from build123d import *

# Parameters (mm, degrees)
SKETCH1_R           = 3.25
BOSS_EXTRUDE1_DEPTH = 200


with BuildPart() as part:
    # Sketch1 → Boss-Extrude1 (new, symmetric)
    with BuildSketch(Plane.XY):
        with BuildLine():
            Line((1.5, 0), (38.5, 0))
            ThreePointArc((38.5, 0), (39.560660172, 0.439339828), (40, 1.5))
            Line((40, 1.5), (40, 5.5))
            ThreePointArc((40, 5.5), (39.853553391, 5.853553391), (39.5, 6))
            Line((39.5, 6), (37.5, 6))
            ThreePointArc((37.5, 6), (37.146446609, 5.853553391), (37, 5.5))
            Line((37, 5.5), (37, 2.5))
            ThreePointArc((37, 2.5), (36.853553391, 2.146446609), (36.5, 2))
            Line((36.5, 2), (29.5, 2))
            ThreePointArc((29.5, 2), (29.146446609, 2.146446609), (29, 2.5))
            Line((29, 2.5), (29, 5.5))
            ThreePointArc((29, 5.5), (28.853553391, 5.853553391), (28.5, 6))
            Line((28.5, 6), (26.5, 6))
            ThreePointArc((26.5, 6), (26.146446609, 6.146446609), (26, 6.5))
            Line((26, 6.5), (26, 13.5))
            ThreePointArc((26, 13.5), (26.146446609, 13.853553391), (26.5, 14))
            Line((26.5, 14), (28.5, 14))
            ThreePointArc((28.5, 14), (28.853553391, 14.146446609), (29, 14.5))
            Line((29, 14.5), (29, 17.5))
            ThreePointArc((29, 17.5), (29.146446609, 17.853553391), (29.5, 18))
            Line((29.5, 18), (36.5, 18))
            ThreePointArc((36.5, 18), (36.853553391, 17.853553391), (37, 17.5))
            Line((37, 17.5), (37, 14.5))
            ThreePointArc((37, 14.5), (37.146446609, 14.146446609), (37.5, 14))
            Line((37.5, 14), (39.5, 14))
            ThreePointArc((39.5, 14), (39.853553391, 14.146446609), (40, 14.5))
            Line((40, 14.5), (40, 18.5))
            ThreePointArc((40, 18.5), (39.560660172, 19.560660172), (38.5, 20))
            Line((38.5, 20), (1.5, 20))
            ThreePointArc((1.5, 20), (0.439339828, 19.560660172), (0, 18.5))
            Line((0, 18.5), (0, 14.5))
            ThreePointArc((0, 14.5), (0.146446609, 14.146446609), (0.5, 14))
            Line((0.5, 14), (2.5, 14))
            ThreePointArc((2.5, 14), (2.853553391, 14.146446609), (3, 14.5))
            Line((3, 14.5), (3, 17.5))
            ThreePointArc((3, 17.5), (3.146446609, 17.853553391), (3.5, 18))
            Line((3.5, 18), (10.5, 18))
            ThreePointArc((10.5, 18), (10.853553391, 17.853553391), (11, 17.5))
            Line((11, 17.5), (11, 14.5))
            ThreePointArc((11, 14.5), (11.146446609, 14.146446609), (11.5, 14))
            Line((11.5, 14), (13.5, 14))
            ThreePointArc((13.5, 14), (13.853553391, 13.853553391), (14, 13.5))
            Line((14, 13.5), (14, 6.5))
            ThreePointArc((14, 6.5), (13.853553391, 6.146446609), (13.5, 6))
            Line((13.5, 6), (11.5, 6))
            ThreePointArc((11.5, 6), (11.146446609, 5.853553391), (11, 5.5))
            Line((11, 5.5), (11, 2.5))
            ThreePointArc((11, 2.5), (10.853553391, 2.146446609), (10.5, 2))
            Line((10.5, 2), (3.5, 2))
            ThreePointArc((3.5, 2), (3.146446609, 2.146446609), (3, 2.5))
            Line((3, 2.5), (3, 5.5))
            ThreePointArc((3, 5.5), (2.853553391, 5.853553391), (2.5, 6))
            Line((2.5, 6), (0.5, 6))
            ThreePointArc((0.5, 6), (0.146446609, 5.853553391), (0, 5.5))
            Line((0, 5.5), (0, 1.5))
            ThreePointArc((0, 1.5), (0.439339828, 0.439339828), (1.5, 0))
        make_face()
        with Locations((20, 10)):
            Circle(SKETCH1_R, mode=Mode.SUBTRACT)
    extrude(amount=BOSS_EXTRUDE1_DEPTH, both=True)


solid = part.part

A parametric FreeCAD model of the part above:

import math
import FreeCAD as App
import Part
import Sketcher
from FreeCAD import Vector
Q = App.Units.Quantity

doc = App.newDocument("Part")
body = doc.addObject("PartDesign::Body", "Body")

# Sketch on XY plane
sketch1 = body.newObject("Sketcher::SketchObject", "Sketch")
sketch1.AttachmentSupport = (doc.getObject("XY_Plane"), [""])
sketch1.MapMode = "FlatFace"
sketch1.addGeometry(Part.LineSegment(Vector(1.5, 0, 0), Vector(38.5, 0, 0)), False)
sketch1.addGeometry(Part.ArcOfCircle(Part.Circle(Vector(38.5, 1.5, 0), Vector(0, 0, 1), 1.5), math.radians(-90), math.radians(0)), False)
sketch1.addGeometry(Part.LineSegment(Vector(40, 1.5, 0), Vector(40, 5.5, 0)), False)
sketch1.addGeometry(Part.ArcOfCircle(Part.Circle(Vector(39.5, 5.5, 0), Vector(0, 0, 1), 0.5), math.radians(0), math.radians(90)), False)
sketch1.addGeometry(Part.LineSegment(Vector(39.5, 6, 0), Vector(37.5, 6, 0)), False)
sketch1.addGeometry(Part.ArcOfCircle(Part.Circle(Vector(37.5, 5.5, 0), Vector(0, 0, 1), 0.5), math.radians(90), math.radians(180)), False)
sketch1.addGeometry(Part.LineSegment(Vector(37, 5.5, 0), Vector(37, 2.5, 0)), False)
sketch1.addGeometry(Part.ArcOfCircle(Part.Circle(Vector(36.5, 2.5, 0), Vector(0, 0, 1), 0.5), math.radians(-90), math.radians(0)), False)
sketch1.addGeometry(Part.LineSegment(Vector(36.5, 2, 0), Vector(29.5, 2, 0)), False)
sketch1.addGeometry(Part.ArcOfCircle(Part.Circle(Vector(29.5, 2.5, 0), Vector(0, 0, 1), 0.5), math.radians(180), math.radians(270)), False)
sketch1.addGeometry(Part.LineSegment(Vector(29, 2.5, 0), Vector(29, 5.5, 0)), False)
sketch1.addGeometry(Part.ArcOfCircle(Part.Circle(Vector(28.5, 5.5, 0), Vector(0, 0, 1), 0.5), math.radians(0), math.radians(90)), False)
sketch1.addGeometry(Part.LineSegment(Vector(28.5, 6, 0), Vector(26.5, 6, 0)), False)
sketch1.addGeometry(Part.ArcOfCircle(Part.Circle(Vector(26.5, 6.5, 0), Vector(0, 0, 1), 0.5), math.radians(180), math.radians(270)), False)
sketch1.addGeometry(Part.LineSegment(Vector(26, 6.5, 0), Vector(26, 13.5, 0)), False)
sketch1.addGeometry(Part.ArcOfCircle(Part.Circle(Vector(26.5, 13.5, 0), Vector(0, 0, 1), 0.5), math.radians(90), math.radians(180)), False)
sketch1.addGeometry(Part.LineSegment(Vector(26.5, 14, 0), Vector(28.5, 14, 0)), False)
sketch1.addGeometry(Part.ArcOfCircle(Part.Circle(Vector(28.5, 14.5, 0), Vector(0, 0, 1), 0.5), math.radians(-90), math.radians(0)), False)
sketch1.addGeometry(Part.LineSegment(Vector(29, 14.5, 0), Vector(29, 17.5, 0)), False)
sketch1.addGeometry(Part.ArcOfCircle(Part.Circle(Vector(29.5, 17.5, 0), Vector(0, 0, 1), 0.5), math.radians(90), math.radians(180)), False)
sketch1.addGeometry(Part.LineSegment(Vector(29.5, 18, 0), Vector(36.5, 18, 0)), False)
sketch1.addGeometry(Part.ArcOfCircle(Part.Circle(Vector(36.5, 17.5, 0), Vector(0, 0, 1), 0.5), math.radians(0), math.radians(90)), False)
sketch1.addGeometry(Part.LineSegment(Vector(37, 17.5, 0), Vector(37, 14.5, 0)), False)
sketch1.addGeometry(Part.ArcOfCircle(Part.Circle(Vector(37.5, 14.5, 0), Vector(0, 0, 1), 0.5), math.radians(180), math.radians(270)), False)
sketch1.addGeometry(Part.LineSegment(Vector(37.5, 14, 0), Vector(39.5, 14, 0)), False)
sketch1.addGeometry(Part.ArcOfCircle(Part.Circle(Vector(39.5, 14.5, 0), Vector(0, 0, 1), 0.5), math.radians(-90), math.radians(0)), False)
sketch1.addGeometry(Part.LineSegment(Vector(40, 14.5, 0), Vector(40, 18.5, 0)), False)
sketch1.addGeometry(Part.ArcOfCircle(Part.Circle(Vector(38.5, 18.5, 0), Vector(0, 0, 1), 1.5), math.radians(0), math.radians(90)), False)
sketch1.addGeometry(Part.LineSegment(Vector(38.5, 20, 0), Vector(1.5, 20, 0)), False)
sketch1.addGeometry(Part.ArcOfCircle(Part.Circle(Vector(1.5, 18.5, 0), Vector(0, 0, 1), 1.5), math.radians(90), math.radians(180)), False)
sketch1.addGeometry(Part.LineSegment(Vector(0, 18.5, 0), Vector(0, 14.5, 0)), False)
sketch1.addGeometry(Part.ArcOfCircle(Part.Circle(Vector(0.5, 14.5, 0), Vector(0, 0, 1), 0.5), math.radians(180), math.radians(270)), False)
sketch1.addGeometry(Part.LineSegment(Vector(0.5, 14, 0), Vector(2.5, 14, 0)), False)
sketch1.addGeometry(Part.ArcOfCircle(Part.Circle(Vector(2.5, 14.5, 0), Vector(0, 0, 1), 0.5), math.radians(-90), math.radians(0)), False)
sketch1.addGeometry(Part.LineSegment(Vector(3, 14.5, 0), Vector(3, 17.5, 0)), False)
sketch1.addGeometry(Part.ArcOfCircle(Part.Circle(Vector(3.5, 17.5, 0), Vector(0, 0, 1), 0.5), math.radians(90), math.radians(180)), False)
sketch1.addGeometry(Part.LineSegment(Vector(3.5, 18, 0), Vector(10.5, 18, 0)), False)
sketch1.addGeometry(Part.ArcOfCircle(Part.Circle(Vector(10.5, 17.5, 0), Vector(0, 0, 1), 0.5), math.radians(0), math.radians(90)), False)
sketch1.addGeometry(Part.LineSegment(Vector(11, 17.5, 0), Vector(11, 14.5, 0)), False)
sketch1.addGeometry(Part.ArcOfCircle(Part.Circle(Vector(11.5, 14.5, 0), Vector(0, 0, 1), 0.5), math.radians(180), math.radians(270)), False)
sketch1.addGeometry(Part.LineSegment(Vector(11.5, 14, 0), Vector(13.5, 14, 0)), False)
sketch1.addGeometry(Part.ArcOfCircle(Part.Circle(Vector(13.5, 13.5, 0), Vector(0, 0, 1), 0.5), math.radians(0), math.radians(90)), False)
sketch1.addGeometry(Part.LineSegment(Vector(14, 13.5, 0), Vector(14, 6.5, 0)), False)
sketch1.addGeometry(Part.ArcOfCircle(Part.Circle(Vector(13.5, 6.5, 0), Vector(0, 0, 1), 0.5), math.radians(-90), math.radians(0)), False)
sketch1.addGeometry(Part.LineSegment(Vector(13.5, 6, 0), Vector(11.5, 6, 0)), False)
sketch1.addGeometry(Part.ArcOfCircle(Part.Circle(Vector(11.5, 5.5, 0), Vector(0, 0, 1), 0.5), math.radians(90), math.radians(180)), False)
sketch1.addGeometry(Part.LineSegment(Vector(11, 5.5, 0), Vector(11, 2.5, 0)), False)
sketch1.addGeometry(Part.ArcOfCircle(Part.Circle(Vector(10.5, 2.5, 0), Vector(0, 0, 1), 0.5), math.radians(-90), math.radians(0)), False)
sketch1.addGeometry(Part.LineSegment(Vector(10.5, 2, 0), Vector(3.5, 2, 0)), False)
sketch1.addGeometry(Part.ArcOfCircle(Part.Circle(Vector(3.5, 2.5, 0), Vector(0, 0, 1), 0.5), math.radians(180), math.radians(270)), False)
sketch1.addGeometry(Part.LineSegment(Vector(3, 2.5, 0), Vector(3, 5.5, 0)), False)
sketch1.addGeometry(Part.ArcOfCircle(Part.Circle(Vector(2.5, 5.5, 0), Vector(0, 0, 1), 0.5), math.radians(0), math.radians(90)), False)
sketch1.addGeometry(Part.LineSegment(Vector(2.5, 6, 0), Vector(0.5, 6, 0)), False)
sketch1.addGeometry(Part.ArcOfCircle(Part.Circle(Vector(0.5, 5.5, 0), Vector(0, 0, 1), 0.5), math.radians(90), math.radians(180)), False)
sketch1.addGeometry(Part.LineSegment(Vector(0, 5.5, 0), Vector(0, 1.5, 0)), False)
sketch1.addGeometry(Part.ArcOfCircle(Part.Circle(Vector(1.5, 1.5, 0), Vector(0, 0, 1), 1.5), math.radians(180), math.radians(270)), False)
sketch1.addGeometry(Part.Circle(Vector(20, 10, 0), Vector(0, 0, 1), 3.25), False)
sketch1.addConstraint(Sketcher.Constraint("Tangent", 0, 2, 1, 1))
sketch1.addConstraint(Sketcher.Constraint("Tangent", 1, 2, 2, 1))
sketch1.addConstraint(Sketcher.Constraint("Tangent", 2, 2, 3, 1))
sketch1.addConstraint(Sketcher.Constraint("Tangent", 3, 2, 4, 1))
sketch1.addConstraint(Sketcher.Constraint("Tangent", 4, 2, 5, 1))
sketch1.addConstraint(Sketcher.Constraint("Tangent", 5, 2, 6, 1))
sketch1.addConstraint(Sketcher.Constraint("Tangent", 6, 2, 7, 2))
sketch1.addConstraint(Sketcher.Constraint("Tangent", 7, 1, 8, 1))
sketch1.addConstraint(Sketcher.Constraint("Tangent", 8, 2, 9, 2))
sketch1.addConstraint(Sketcher.Constraint("Tangent", 9, 1, 10, 1))
sketch1.addConstraint(Sketcher.Constraint("Tangent", 10, 2, 11, 1))
sketch1.addConstraint(Sketcher.Constraint("Tangent", 11, 2, 12, 1))
sketch1.addConstraint(Sketcher.Constraint("Tangent", 12, 2, 13, 2))
sketch1.addConstraint(Sketcher.Constraint("Tangent", 13, 1, 14, 1))
sketch1.addConstraint(Sketcher.Constraint("Tangent", 14, 2, 15, 2))
sketch1.addConstraint(Sketcher.Constraint("Tangent", 15, 1, 16, 1))
sketch1.addConstraint(Sketcher.Constraint("Tangent", 16, 2, 17, 1))
sketch1.addConstraint(Sketcher.Constraint("Tangent", 17, 2, 18, 1))
sketch1.addConstraint(Sketcher.Constraint("Tangent", 18, 2, 19, 2))
sketch1.addConstraint(Sketcher.Constraint("Tangent", 19, 1, 20, 1))
sketch1.addConstraint(Sketcher.Constraint("Tangent", 20, 2, 21, 2))
sketch1.addConstraint(Sketcher.Constraint("Tangent", 21, 1, 22, 1))
sketch1.addConstraint(Sketcher.Constraint("Tangent", 22, 2, 23, 1))
sketch1.addConstraint(Sketcher.Constraint("Tangent", 23, 2, 24, 1))
sketch1.addConstraint(Sketcher.Constraint("Tangent", 24, 2, 25, 1))
sketch1.addConstraint(Sketcher.Constraint("Tangent", 25, 2, 26, 1))
sketch1.addConstraint(Sketcher.Constraint("Tangent", 26, 2, 27, 1))
sketch1.addConstraint(Sketcher.Constraint("Tangent", 27, 2, 28, 1))
sketch1.addConstraint(Sketcher.Constraint("Tangent", 28, 2, 29, 1))
sketch1.addConstraint(Sketcher.Constraint("Tangent", 29, 2, 30, 1))
sketch1.addConstraint(Sketcher.Constraint("Tangent", 30, 2, 31, 1))
sketch1.addConstraint(Sketcher.Constraint("Tangent", 31, 2, 32, 1))
sketch1.addConstraint(Sketcher.Constraint("Tangent", 32, 2, 33, 1))
sketch1.addConstraint(Sketcher.Constraint("Tangent", 33, 2, 34, 1))
sketch1.addConstraint(Sketcher.Constraint("Tangent", 34, 2, 35, 2))
sketch1.addConstraint(Sketcher.Constraint("Tangent", 35, 1, 36, 1))
sketch1.addConstraint(Sketcher.Constraint("Tangent", 36, 2, 37, 2))
sketch1.addConstraint(Sketcher.Constraint("Tangent", 37, 1, 38, 1))
sketch1.addConstraint(Sketcher.Constraint("Tangent", 38, 2, 39, 1))
sketch1.addConstraint(Sketcher.Constraint("Tangent", 39, 2, 40, 1))
sketch1.addConstraint(Sketcher.Constraint("Tangent", 40, 2, 41, 2))
sketch1.addConstraint(Sketcher.Constraint("Tangent", 41, 1, 42, 1))
sketch1.addConstraint(Sketcher.Constraint("Tangent", 42, 2, 43, 2))
sketch1.addConstraint(Sketcher.Constraint("Tangent", 43, 1, 44, 1))
sketch1.addConstraint(Sketcher.Constraint("Tangent", 44, 2, 45, 1))
sketch1.addConstraint(Sketcher.Constraint("Tangent", 45, 2, 46, 1))
sketch1.addConstraint(Sketcher.Constraint("Tangent", 46, 2, 47, 2))
sketch1.addConstraint(Sketcher.Constraint("Tangent", 47, 1, 48, 1))
sketch1.addConstraint(Sketcher.Constraint("Tangent", 48, 2, 49, 2))
sketch1.addConstraint(Sketcher.Constraint("Tangent", 49, 1, 50, 1))
sketch1.addConstraint(Sketcher.Constraint("Tangent", 50, 2, 51, 1))
sketch1.addConstraint(Sketcher.Constraint("Tangent", 51, 2, 52, 1))
sketch1.addConstraint(Sketcher.Constraint("Tangent", 52, 2, 53, 1))
sketch1.addConstraint(Sketcher.Constraint("Tangent", 53, 2, 54, 1))
sketch1.addConstraint(Sketcher.Constraint("Tangent", 54, 2, 55, 1))
sketch1.addConstraint(Sketcher.Constraint("Tangent", 55, 2, 0, 1))
sketch1.addConstraint(Sketcher.Constraint("Horizontal", 0))
sketch1.addConstraint(Sketcher.Constraint("Vertical", 2))
sketch1.addConstraint(Sketcher.Constraint("Horizontal", 4))
sketch1.addConstraint(Sketcher.Constraint("Vertical", 6))
sketch1.addConstraint(Sketcher.Constraint("Horizontal", 8))
sketch1.addConstraint(Sketcher.Constraint("Vertical", 10))
sketch1.addConstraint(Sketcher.Constraint("Horizontal", 12))
sketch1.addConstraint(Sketcher.Constraint("Vertical", 14))
sketch1.addConstraint(Sketcher.Constraint("Horizontal", 16))
sketch1.addConstraint(Sketcher.Constraint("Vertical", 18))
sketch1.addConstraint(Sketcher.Constraint("Horizontal", 20))
sketch1.addConstraint(Sketcher.Constraint("Vertical", 22))
sketch1.addConstraint(Sketcher.Constraint("Horizontal", 24))
sketch1.addConstraint(Sketcher.Constraint("Vertical", 26))
sketch1.addConstraint(Sketcher.Constraint("Horizontal", 28))
sketch1.addConstraint(Sketcher.Constraint("Vertical", 30))
sketch1.addConstraint(Sketcher.Constraint("Horizontal", 32))
sketch1.addConstraint(Sketcher.Constraint("Vertical", 34))
sketch1.addConstraint(Sketcher.Constraint("Horizontal", 36))
sketch1.addConstraint(Sketcher.Constraint("Vertical", 38))
sketch1.addConstraint(Sketcher.Constraint("Horizontal", 40))
sketch1.addConstraint(Sketcher.Constraint("Vertical", 42))
sketch1.addConstraint(Sketcher.Constraint("Horizontal", 44))
sketch1.addConstraint(Sketcher.Constraint("Vertical", 46))
sketch1.addConstraint(Sketcher.Constraint("Horizontal", 48))
sketch1.addConstraint(Sketcher.Constraint("Vertical", 50))
sketch1.addConstraint(Sketcher.Constraint("Horizontal", 52))
sketch1.addConstraint(Sketcher.Constraint("Vertical", 54))
sketch1.addConstraint(Sketcher.Constraint("Equal", 3, 5))
sketch1.addConstraint(Sketcher.Constraint("Equal", 5, 7))
sketch1.addConstraint(Sketcher.Constraint("Equal", 7, 9))
sketch1.addConstraint(Sketcher.Constraint("Equal", 9, 11))
sketch1.addConstraint(Sketcher.Constraint("Equal", 11, 13))
sketch1.addConstraint(Sketcher.Constraint("Equal", 13, 15))
sketch1.addConstraint(Sketcher.Constraint("Equal", 15, 17))
sketch1.addConstraint(Sketcher.Constraint("Equal", 17, 19))
sketch1.addConstraint(Sketcher.Constraint("Equal", 19, 21))
sketch1.addConstraint(Sketcher.Constraint("Equal", 21, 23))
sketch1.addConstraint(Sketcher.Constraint("Equal", 23, 25))
sketch1.addConstraint(Sketcher.Constraint("Equal", 1, 27))
sketch1.addConstraint(Sketcher.Constraint("Equal", 27, 29))
sketch1.addConstraint(Sketcher.Constraint("Equal", 25, 31))
sketch1.addConstraint(Sketcher.Constraint("Equal", 31, 33))
sketch1.addConstraint(Sketcher.Constraint("Equal", 33, 35))
sketch1.addConstraint(Sketcher.Constraint("Equal", 35, 37))
sketch1.addConstraint(Sketcher.Constraint("Equal", 37, 39))
sketch1.addConstraint(Sketcher.Constraint("Equal", 39, 41))
sketch1.addConstraint(Sketcher.Constraint("Equal", 41, 43))
sketch1.addConstraint(Sketcher.Constraint("Equal", 43, 45))
sketch1.addConstraint(Sketcher.Constraint("Equal", 45, 47))
sketch1.addConstraint(Sketcher.Constraint("Equal", 47, 49))
sketch1.addConstraint(Sketcher.Constraint("Equal", 49, 51))
sketch1.addConstraint(Sketcher.Constraint("Equal", 51, 53))
sketch1.addConstraint(Sketcher.Constraint("Equal", 29, 55))
sketch1.addConstraint(Sketcher.Constraint("PointOnObject", 0, 2, -1))
sketch1.addConstraint(Sketcher.Constraint("PointOnObject", 29, 2, -2))
sketch1.addConstraint(Sketcher.Constraint("PointOnObject", 53, 2, -2))
sketch1.addConstraint(Sketcher.Constraint("Horizontal", 5, 3, 11, 3))
sketch1.addConstraint(Sketcher.Constraint("Horizontal", 17, 3, 23, 3))
sketch1.addConstraint(Sketcher.Constraint("Horizontal", 25, 3, 31, 3))
sketch1.addConstraint(Sketcher.Constraint("Horizontal", 21, 3, 35, 3))
sketch1.addConstraint(Sketcher.Constraint("Horizontal", 33, 3, 39, 3))
sketch1.addConstraint(Sketcher.Constraint("Horizontal", 13, 3, 43, 3))
sketch1.addConstraint(Sketcher.Constraint("Horizontal", 9, 3, 47, 3))
sketch1.addConstraint(Sketcher.Constraint("Horizontal", 45, 3, 51, 3))
sketch1.addConstraint(Sketcher.Constraint("Vertical", 11, 3, 17, 3))
sketch1.addConstraint(Sketcher.Constraint("Vertical", 7, 3, 21, 3))
sketch1.addConstraint(Sketcher.Constraint("Vertical", 3, 3, 25, 3))
sketch1.addConstraint(Sketcher.Constraint("Vertical", 39, 3, 45, 3))
sketch1.addConstraint(Sketcher.Constraint("Vertical", 35, 3, 49, 3))
sketch1.addConstraint(Sketcher.Constraint("Equal", 4, 12))
sketch1.addConstraint(Sketcher.Constraint("Equal", 24, 32))
sketch1.addConstraint(Sketcher.Constraint("Equal", 20, 36))
sketch1.addConstraint(Sketcher.Constraint("Equal", 32, 40))
sketch1.addConstraint(Sketcher.Constraint("Equal", 48, 14))
sketch1.addConstraint(Sketcher.Constraint("Equal", 10, 18))
sketch1.addConstraint(Sketcher.Constraint("Equal", 2, 26))
sketch1.addConstraint(Sketcher.Constraint("Diameter", 56, Q("6.5 mm")))
sketch1.addConstraint(Sketcher.Constraint("Radius", 1, Q("1.5 mm")))
sketch1.addConstraint(Sketcher.Constraint("Radius", 3, Q("0.5 mm")))
sketch1.addConstraint(Sketcher.Constraint("DistanceX", 0, 1, 0, 2, Q("37 mm")))
sketch1.addConstraint(Sketcher.Constraint("DistanceX", 4, 2, 4, 1, Q("2 mm")))
sketch1.addConstraint(Sketcher.Constraint("DistanceX", 8, 2, 8, 1, Q("7 mm")))
sketch1.addConstraint(Sketcher.Constraint("DistanceY", 2, 1, 2, 2, Q("4 mm")))
sketch1.addConstraint(Sketcher.Constraint("DistanceY", 6, 2, 6, 1, Q("3 mm")))
sketch1.addConstraint(Sketcher.Constraint("DistanceX", -1, 1, 56, 3, Q("20 mm")))
sketch1.addConstraint(Sketcher.Constraint("DistanceY", -1, 1, 56, 3, Q("10 mm")))
pad1 = body.newObject("PartDesign::Pad", "Pad")
pad1.Profile = sketch1
pad1.Length = 400
pad1.Midplane = True

doc.recompute()
